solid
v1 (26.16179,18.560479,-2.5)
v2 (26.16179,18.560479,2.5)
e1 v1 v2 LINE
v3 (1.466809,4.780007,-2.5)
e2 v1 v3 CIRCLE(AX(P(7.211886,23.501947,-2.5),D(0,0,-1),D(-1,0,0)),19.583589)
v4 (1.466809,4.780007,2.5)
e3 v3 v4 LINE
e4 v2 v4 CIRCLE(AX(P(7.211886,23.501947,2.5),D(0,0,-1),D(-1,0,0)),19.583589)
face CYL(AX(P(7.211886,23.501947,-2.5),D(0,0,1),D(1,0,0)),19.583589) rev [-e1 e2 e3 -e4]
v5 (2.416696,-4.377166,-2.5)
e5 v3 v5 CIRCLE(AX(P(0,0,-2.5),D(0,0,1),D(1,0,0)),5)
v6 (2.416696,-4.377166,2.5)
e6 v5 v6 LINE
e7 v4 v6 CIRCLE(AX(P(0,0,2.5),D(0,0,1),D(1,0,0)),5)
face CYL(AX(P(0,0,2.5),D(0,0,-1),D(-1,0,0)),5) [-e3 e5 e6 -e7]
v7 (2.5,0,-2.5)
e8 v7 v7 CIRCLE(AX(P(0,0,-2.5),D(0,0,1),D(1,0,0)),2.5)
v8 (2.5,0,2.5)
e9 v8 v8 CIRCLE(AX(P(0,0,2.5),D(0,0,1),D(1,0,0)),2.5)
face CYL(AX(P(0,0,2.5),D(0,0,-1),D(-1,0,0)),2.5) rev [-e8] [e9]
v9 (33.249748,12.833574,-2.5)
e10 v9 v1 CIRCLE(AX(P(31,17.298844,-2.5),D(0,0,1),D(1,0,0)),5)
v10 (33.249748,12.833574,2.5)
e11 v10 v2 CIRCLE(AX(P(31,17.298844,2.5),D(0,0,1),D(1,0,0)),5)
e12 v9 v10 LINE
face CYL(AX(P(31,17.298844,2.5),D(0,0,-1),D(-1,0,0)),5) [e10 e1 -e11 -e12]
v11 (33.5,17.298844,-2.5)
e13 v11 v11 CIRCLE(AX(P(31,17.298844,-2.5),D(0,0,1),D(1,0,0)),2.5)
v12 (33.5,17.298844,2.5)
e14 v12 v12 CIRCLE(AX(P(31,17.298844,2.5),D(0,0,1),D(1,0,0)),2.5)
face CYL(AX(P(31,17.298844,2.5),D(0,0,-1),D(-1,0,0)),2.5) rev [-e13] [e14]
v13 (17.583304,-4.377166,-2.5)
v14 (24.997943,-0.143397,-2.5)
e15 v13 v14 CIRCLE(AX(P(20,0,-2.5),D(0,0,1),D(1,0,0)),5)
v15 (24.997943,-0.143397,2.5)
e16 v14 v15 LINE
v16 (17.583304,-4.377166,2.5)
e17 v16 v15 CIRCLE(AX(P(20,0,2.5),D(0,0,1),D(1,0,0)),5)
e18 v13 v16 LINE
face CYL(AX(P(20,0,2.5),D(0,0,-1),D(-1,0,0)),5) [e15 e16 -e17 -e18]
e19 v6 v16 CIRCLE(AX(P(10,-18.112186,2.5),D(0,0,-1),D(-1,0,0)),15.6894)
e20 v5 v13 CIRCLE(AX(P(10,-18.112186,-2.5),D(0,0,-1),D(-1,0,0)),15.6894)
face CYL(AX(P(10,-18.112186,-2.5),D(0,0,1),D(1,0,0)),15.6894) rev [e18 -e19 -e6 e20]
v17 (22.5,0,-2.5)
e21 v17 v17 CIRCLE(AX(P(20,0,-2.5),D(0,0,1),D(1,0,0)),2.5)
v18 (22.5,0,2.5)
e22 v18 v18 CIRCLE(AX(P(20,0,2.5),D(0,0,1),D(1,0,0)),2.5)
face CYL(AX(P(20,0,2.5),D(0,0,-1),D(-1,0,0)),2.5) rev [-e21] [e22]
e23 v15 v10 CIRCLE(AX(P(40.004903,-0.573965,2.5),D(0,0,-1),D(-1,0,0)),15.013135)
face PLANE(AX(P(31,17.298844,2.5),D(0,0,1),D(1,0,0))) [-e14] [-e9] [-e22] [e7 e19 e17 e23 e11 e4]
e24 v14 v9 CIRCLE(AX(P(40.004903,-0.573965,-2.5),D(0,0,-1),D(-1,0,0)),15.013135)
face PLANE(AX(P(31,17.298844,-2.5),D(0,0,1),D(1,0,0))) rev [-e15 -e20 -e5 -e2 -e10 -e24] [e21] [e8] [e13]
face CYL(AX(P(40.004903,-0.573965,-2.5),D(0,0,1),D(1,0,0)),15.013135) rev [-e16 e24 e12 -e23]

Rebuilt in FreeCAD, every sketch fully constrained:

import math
import FreeCAD as App
import Part
import Sketcher
Q = App.Units.Quantity

doc = App.newDocument("Part")
body = doc.addObject("PartDesign::Body", "Body")

sketch1 = body.newObject("Sketcher::SketchObject", "Sketch")
sketch1.AttachmentSupport = (doc.getObject("XY_Plane"), [""])
sketch1.MapMode = "FlatFace"
sketch1.addGeometry([
    Part.LineSegment(App.Vector(28.6, 21.7, 0), App.Vector(-2.4, 4.4, 0)),
    Part.ArcOfCircle(Part.Circle(App.Vector(0, 0, 0), App.Vector(0, 0, 1), 5), math.radians(119), math.radians(270)),
    Part.LineSegment(App.Vector(0, -5, 0), App.Vector(20, -5, 0)),
    Part.ArcOfCircle(Part.Circle(App.Vector(20, 0, 0), App.Vector(0, 0, 1), 5), math.radians(-90), math.radians(-32)),
    Part.LineSegment(App.Vector(24.2, -2.7, 0), App.Vector(35.2, 14.6, 0)),
    Part.ArcOfCircle(Part.Circle(App.Vector(31, 17.3, 0), App.Vector(0, 0, 1), 5), math.radians(-32), math.radians(119)),
    Part.Circle(App.Vector(0, 0, 0), App.Vector(0, 0, 1), 2.5),
    Part.Circle(App.Vector(20, 0, 0), App.Vector(0, 0, 1), 2.5),
    Part.Circle(App.Vector(31, 17.3, 0), App.Vector(0, 0, 1), 2.5),
], False)
sketch1.addConstraint([
    Sketcher.Constraint("Tangent", 0, 2, 1, 1),
    Sketcher.Constraint("Tangent", 1, 2, 2, 1),
    Sketcher.Constraint("Tangent", 2, 2, 3, 1),
    Sketcher.Constraint("Tangent", 3, 2, 4, 1),
    Sketcher.Constraint("Tangent", 4, 2, 5, 1),
    Sketcher.Constraint("Tangent", 5, 2, 0, 1),
    Sketcher.Constraint("Horizontal", 2),
    Sketcher.Constraint("Coincident", 1, 3, -1, 1),
    Sketcher.Constraint("Coincident", 6, 3, -1, 1),
    Sketcher.Constraint("Coincident", 7, 3, 3, 3),
    Sketcher.Constraint("Coincident", 8, 3, 5, 3),
    Sketcher.Constraint("Equal", 1, 3),
    Sketcher.Constraint("Equal", 3, 5),
    Sketcher.Constraint("Equal", 6, 7),
    Sketcher.Constraint("Equal", 7, 8),
    Sketcher.Constraint("Diameter", 6, Q("5 mm")),
    Sketcher.Constraint("Radius", 1, Q("5 mm")),
    Sketcher.Constraint("DistanceX", 2, 1, 2, 2, Q("20 mm")),
    Sketcher.Constraint("DistanceX", -1, 1, 5, 3, Q("31 mm")),
    Sketcher.Constraint("Distance", 0, Q("35.5 mm")),
])
pad1 = body.newObject("PartDesign::Pad", "Pad")
pad1.Profile = sketch1
pad1.Length = 5
pad1.Midplane = True

sketch2 = body.newObject("Sketcher::SketchObject", "Sketch001")
sketch2.AttachmentSupport = (doc.getObject("XY_Plane"), [""])
sketch2.MapMode = "FlatFace"
sketch2.AttachmentOffset = App.Placement(App.Vector(0, 0, 2.5), App.Rotation())
sketch2.addGeometry([
    Part.LineSegment(App.Vector(-11, 28, 0), App.Vector(-11, -11, 0)),
    Part.LineSegment(App.Vector(-11, -11, 0), App.Vector(42, -11, 0)),
    Part.LineSegment(App.Vector(42, -11, 0), App.Vector(42, 28, 0)),
    Part.LineSegment(App.Vector(42, 28, 0), App.Vector(-11, 28, 0)),
    Part.ArcOfCircle(Part.Circle(App.Vector(0, 0, 0), App.Vector(0, 0, 1), 5), math.radians(73), math.radians(299)),
    Part.ArcOfCircle(Part.Circle(App.Vector(7, 24, 0), App.Vector(0, 0, 1), 20), math.radians(-107), math.radians(-15)),
    Part.ArcOfCircle(Part.Circle(App.Vector(31, 17, 0), App.Vector(0, 0, 1), 5), math.radians(-63), math.radians(165)),
    Part.ArcOfCircle(Part.Circle(App.Vector(40, -1, 0), App.Vector(0, 0, 1), 15), math.radians(117), math.radians(178)),
    Part.ArcOfCircle(Part.Circle(App.Vector(20, 0, 0), App.Vector(0, 0, 1), 5), math.radians(-119), math.radians(-2)),
    Part.ArcOfCircle(Part.Circle(App.Vector(10, -18, 0), App.Vector(0, 0, 1), 16), math.radians(61), math.radians(119)),
], False)
sketch2.addConstraint([
    Sketcher.Constraint("Coincident", 0, 2, 1, 1),
    Sketcher.Constraint("Coincident", 1, 2, 2, 1),
    Sketcher.Constraint("Coincident", 2, 2, 3, 1),
    Sketcher.Constraint("Coincident", 3, 2, 0, 1),
    Sketcher.Constraint("Tangent", 4, 1, 5, 1),
    Sketcher.Constraint("Tangent", 5, 2, 6, 2),
    Sketcher.Constraint("Tangent", 6, 1, 7, 1),
    Sketcher.Constraint("Tangent", 7, 2, 8, 2),
    Sketcher.Constraint("Tangent", 8, 1, 9, 1),
    Sketcher.Constraint("Tangent", 9, 2, 4, 2),
    Sketcher.Constraint("Vertical", 0),
    Sketcher.Constraint("Horizontal", 1),
    Sketcher.Constraint("Vertical", 2),
    Sketcher.Constraint("Horizontal", 3),
    Sketcher.Constraint("Coincident", 4, 3, -1, 1),
    Sketcher.Constraint("Equal", 4, 6),
    Sketcher.Constraint("Equal", 6, 8),
    Sketcher.Constraint("PointOnObject", 8, 3, -1),
    Sketcher.Constraint("Radius", 4, Q("5 mm")),
    Sketcher.Constraint("DistanceX", -1, 1, 6, 3, Q("31 mm")),
    Sketcher.Constraint("DistanceX", -1, 1, 8, 3, Q("20 mm")),
    Sketcher.Constraint("Radius", 9, Q("15.6894 mm")),
    Sketcher.Constraint("DistanceX", 1, 1, 1, 2, Q("52.902 mm")),
    Sketcher.Constraint("DistanceY", 0, 2, 0, 1, Q("39.201 mm")),
    Sketcher.Constraint("DistanceY", -1, 1, 2, 2, Q("28.25 mm")),
    Sketcher.Constraint("Radius", 5, Q("19.583589 mm")),
    Sketcher.Constraint("DistanceX", 0, 2, -1, 1, Q("10.951 mm")),
    Sketcher.Constraint("Radius", 7, Q("15.013135 mm")),
    Sketcher.Constraint("DistanceX", -1, 1, 4, 1, Q("1.466809 mm")),
])
pocket1 = body.newObject("PartDesign::Pocket", "Pocket")
pocket1.Profile = sketch2
pocket1.Length = 5

doc.recompute()
